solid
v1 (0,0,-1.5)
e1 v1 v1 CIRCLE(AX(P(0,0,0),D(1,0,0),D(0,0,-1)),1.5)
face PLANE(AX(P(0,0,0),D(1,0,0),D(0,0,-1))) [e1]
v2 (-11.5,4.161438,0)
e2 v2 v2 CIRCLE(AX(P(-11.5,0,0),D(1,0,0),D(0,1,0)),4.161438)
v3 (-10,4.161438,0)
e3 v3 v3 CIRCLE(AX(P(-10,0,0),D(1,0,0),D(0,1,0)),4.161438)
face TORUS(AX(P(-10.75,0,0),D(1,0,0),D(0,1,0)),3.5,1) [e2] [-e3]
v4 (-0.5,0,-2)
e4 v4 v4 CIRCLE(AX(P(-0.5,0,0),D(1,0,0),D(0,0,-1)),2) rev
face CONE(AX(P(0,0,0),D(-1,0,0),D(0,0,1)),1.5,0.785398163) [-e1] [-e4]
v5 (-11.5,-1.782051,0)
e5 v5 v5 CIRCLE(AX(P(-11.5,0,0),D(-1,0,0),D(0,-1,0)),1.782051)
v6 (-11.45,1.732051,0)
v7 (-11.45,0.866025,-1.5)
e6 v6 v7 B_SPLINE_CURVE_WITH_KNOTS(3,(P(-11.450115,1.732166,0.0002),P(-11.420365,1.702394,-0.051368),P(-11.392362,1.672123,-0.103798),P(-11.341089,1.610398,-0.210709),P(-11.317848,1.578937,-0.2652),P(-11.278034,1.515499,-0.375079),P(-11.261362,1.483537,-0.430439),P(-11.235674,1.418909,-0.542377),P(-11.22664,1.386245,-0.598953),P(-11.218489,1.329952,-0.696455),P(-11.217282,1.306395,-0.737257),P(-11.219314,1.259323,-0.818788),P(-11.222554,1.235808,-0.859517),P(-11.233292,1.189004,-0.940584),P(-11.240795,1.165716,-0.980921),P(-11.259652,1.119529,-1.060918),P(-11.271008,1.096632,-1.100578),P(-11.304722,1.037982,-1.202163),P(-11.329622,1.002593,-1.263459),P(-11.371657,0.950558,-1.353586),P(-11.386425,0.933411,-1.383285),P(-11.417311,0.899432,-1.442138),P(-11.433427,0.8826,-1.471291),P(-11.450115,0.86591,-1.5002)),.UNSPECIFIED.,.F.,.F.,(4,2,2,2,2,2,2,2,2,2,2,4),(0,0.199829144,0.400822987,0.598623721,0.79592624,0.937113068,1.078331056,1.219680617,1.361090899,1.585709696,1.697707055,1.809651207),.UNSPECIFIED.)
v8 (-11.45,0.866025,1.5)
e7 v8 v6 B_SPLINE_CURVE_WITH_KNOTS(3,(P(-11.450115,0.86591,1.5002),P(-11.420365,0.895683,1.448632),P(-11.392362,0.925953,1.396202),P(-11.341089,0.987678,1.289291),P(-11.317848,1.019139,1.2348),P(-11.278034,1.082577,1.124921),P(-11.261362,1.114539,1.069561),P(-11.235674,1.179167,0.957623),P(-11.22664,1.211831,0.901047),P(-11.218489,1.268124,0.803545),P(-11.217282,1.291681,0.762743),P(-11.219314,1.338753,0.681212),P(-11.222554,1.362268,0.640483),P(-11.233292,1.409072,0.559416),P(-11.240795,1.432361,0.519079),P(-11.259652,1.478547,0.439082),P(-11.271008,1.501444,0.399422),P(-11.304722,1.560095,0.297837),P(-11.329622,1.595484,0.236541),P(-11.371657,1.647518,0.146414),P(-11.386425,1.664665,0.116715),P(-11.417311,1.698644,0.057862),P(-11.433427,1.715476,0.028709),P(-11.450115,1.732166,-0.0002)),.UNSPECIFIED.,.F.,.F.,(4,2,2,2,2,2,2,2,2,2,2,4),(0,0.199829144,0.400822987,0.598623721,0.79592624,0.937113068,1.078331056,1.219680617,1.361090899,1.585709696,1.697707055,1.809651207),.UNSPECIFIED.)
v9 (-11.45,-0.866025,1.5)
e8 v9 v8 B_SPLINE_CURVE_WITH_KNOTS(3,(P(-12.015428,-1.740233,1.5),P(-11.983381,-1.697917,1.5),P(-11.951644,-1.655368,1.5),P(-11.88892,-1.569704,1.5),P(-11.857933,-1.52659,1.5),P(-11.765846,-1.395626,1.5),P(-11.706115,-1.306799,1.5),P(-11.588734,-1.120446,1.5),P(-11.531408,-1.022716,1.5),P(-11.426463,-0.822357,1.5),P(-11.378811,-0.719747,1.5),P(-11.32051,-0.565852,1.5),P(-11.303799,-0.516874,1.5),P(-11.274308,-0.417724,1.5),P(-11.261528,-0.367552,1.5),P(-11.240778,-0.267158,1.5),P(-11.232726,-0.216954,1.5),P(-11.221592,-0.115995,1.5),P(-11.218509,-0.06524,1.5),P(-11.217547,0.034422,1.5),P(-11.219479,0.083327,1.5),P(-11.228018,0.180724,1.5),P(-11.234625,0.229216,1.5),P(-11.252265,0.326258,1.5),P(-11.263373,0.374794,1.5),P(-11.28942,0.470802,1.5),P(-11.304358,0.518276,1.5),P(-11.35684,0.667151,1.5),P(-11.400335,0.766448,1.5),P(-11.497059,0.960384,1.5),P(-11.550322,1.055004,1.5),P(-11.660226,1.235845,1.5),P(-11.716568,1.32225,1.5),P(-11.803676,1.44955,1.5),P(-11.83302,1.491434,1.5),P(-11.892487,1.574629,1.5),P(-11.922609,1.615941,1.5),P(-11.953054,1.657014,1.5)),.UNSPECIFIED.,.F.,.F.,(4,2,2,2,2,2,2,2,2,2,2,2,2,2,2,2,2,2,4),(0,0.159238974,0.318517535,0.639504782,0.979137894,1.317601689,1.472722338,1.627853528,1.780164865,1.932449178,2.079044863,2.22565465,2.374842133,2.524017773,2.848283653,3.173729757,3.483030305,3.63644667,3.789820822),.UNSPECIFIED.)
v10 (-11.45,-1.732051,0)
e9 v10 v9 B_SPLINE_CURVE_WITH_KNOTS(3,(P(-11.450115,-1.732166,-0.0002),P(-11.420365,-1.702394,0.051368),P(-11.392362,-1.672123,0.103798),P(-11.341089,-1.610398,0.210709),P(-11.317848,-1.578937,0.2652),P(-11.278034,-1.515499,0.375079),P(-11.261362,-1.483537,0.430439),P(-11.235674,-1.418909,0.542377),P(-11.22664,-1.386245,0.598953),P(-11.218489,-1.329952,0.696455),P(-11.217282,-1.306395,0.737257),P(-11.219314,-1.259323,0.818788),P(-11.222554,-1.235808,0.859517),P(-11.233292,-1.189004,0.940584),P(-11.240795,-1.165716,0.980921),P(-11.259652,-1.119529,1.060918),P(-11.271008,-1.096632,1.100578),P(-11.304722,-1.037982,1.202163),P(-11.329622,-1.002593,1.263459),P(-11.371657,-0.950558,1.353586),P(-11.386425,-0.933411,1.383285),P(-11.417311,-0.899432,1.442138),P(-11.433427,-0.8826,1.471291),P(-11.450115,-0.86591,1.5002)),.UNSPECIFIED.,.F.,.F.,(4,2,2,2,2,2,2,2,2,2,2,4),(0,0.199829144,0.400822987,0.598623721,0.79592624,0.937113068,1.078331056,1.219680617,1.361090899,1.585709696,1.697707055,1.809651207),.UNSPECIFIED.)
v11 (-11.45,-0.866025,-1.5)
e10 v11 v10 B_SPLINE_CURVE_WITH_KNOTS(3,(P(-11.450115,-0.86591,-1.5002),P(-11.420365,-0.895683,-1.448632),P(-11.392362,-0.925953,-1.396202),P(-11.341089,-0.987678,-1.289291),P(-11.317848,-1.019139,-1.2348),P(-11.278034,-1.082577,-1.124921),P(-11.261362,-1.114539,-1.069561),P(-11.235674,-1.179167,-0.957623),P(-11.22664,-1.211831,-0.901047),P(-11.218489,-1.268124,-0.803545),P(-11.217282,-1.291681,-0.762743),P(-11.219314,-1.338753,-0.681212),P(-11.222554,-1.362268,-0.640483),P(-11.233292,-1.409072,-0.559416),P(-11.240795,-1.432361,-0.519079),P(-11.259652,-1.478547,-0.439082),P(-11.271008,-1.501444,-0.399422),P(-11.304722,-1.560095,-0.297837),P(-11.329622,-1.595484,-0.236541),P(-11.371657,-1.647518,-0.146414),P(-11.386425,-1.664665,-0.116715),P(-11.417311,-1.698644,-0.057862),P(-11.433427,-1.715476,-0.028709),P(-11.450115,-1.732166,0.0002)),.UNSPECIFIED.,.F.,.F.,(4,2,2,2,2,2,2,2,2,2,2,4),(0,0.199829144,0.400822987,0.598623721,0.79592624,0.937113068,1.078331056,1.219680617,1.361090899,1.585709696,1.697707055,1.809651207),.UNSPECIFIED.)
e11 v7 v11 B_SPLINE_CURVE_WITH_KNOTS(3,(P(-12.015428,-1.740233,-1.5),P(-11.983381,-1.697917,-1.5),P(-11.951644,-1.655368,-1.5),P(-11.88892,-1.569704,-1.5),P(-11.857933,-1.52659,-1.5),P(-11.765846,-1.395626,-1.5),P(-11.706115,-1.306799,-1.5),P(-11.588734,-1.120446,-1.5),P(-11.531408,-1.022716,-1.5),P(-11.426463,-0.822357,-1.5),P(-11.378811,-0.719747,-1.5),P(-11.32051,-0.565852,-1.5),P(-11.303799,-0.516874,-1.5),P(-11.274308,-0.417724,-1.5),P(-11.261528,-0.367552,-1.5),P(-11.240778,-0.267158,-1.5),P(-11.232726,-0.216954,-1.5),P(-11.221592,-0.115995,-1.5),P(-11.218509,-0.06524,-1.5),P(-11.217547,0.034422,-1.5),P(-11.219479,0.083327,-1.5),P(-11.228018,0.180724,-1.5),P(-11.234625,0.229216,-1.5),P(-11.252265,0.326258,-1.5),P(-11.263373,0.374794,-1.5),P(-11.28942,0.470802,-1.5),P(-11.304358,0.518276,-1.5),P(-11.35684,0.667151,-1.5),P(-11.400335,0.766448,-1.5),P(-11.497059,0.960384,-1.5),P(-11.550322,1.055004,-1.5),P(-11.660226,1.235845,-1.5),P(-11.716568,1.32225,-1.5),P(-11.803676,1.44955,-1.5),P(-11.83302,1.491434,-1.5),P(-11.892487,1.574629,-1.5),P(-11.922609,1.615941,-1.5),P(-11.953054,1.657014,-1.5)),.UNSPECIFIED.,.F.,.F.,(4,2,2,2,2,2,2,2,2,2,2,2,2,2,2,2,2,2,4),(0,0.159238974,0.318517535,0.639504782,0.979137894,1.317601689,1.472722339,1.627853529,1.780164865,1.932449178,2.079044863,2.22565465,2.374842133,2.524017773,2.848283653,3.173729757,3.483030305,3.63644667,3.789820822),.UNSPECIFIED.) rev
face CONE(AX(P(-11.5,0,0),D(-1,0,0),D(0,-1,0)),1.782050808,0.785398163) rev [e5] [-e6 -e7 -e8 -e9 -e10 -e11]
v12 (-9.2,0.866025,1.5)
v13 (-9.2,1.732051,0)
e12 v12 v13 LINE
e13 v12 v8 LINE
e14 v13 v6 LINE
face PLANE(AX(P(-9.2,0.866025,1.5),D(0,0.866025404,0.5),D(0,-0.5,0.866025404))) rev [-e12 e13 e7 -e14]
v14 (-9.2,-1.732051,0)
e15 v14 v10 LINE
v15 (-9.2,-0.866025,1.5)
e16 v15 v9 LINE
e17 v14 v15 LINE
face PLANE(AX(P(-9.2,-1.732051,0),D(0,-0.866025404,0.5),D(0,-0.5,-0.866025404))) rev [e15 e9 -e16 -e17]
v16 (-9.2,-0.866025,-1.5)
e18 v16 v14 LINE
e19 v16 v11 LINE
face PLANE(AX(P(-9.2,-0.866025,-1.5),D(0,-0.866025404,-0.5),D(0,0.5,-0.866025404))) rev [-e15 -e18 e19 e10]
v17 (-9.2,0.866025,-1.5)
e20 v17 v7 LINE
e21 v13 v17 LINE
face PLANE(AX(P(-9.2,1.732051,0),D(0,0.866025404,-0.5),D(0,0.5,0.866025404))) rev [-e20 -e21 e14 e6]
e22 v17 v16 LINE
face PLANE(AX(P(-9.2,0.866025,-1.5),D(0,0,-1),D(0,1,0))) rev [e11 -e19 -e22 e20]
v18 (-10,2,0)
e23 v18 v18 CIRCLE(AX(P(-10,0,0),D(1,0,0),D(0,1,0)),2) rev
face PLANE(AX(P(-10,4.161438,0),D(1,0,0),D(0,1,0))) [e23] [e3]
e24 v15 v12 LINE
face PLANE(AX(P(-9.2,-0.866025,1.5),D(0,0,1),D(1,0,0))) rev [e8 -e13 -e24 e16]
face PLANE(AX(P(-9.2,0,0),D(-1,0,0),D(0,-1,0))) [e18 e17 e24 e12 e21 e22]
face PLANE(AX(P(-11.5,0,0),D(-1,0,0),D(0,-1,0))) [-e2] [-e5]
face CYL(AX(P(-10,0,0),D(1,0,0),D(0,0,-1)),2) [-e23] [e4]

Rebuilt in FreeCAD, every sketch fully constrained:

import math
import FreeCAD as App
import Part
import Sketcher
Q = App.Units.Quantity


def edges_at(feature, points):
    """Names of the edges that pass closest to the given points."""
    edges = feature.Shape.Edges
    near = lambda p: min(range(len(edges)), key=lambda i: edges[i].distToShape(Part.Vertex(*p))[0])
    return sorted({f"Edge{near(p) + 1}" for p in points})


def add_polygon(sketch, points):
    """Adds a closed chain of lines whose ends are joined by coincident constraints."""
    first, n = sketch.GeometryCount, len(points)
    for a, b in zip(points, points[1:] + points[:1]):
        sketch.addGeometry(Part.LineSegment(App.Vector(*a, 0), App.Vector(*b, 0)), False)
    for i in range(n):
        sketch.addConstraint(Sketcher.Constraint("Coincident", first + i, 2, first + (i + 1) % n, 1))

doc = App.newDocument("Part")
body = doc.addObject("PartDesign::Body", "Body")

sketch1 = body.newObject("Sketcher::SketchObject", "Sketch")
sketch1.AttachmentSupport = (doc.getObject("YZ_Plane"), [""])
sketch1.MapMode = "FlatFace"
sketch1.addGeometry(Part.Circle(App.Vector(0, 0, 0), App.Vector(0, 0, 1), 2), False)
sketch1.addConstraint(Sketcher.Constraint("Coincident", 0, 3, -1, 1))
sketch1.addConstraint(Sketcher.Constraint("Diameter", 0, Q("4 mm")))
pad1 = body.newObject("PartDesign::Pad", "Pad")
pad1.Profile = sketch1
pad1.Length = 10
pad1.Reversed = True
doc.recompute()

chamfer = body.newObject("PartDesign::Chamfer", "Chamfer")
chamfer.Base = (pad1, edges_at(pad1, [(0, 0, 2)]))
chamfer.Size = 0.5

sketch2 = body.newObject("Sketcher::SketchObject", "Sketch001")
sketch2.AttachmentSupport = (doc.getObject("XY_Plane"), [""])
sketch2.MapMode = "FlatFace"
sketch2.addGeometry(Part.LineSegment(App.Vector(-11.5, 4.2, 0), App.Vector(-11.5, 0, 0)), False)
sketch2.addGeometry(Part.LineSegment(App.Vector(-11.5, 0, 0), App.Vector(-10, 0, 0)), False)
sketch2.addGeometry(Part.LineSegment(App.Vector(-10, 0, 0), App.Vector(-10, 4.2, 0)), False)
sketch2.addGeometry(Part.ArcOfCircle(Part.Circle(App.Vector(-10.8, 3.5, 0), App.Vector(0, 0, 1), 1), math.radians(41), math.radians(139)), False)
sketch2.addConstraint(Sketcher.Constraint("Coincident", 0, 2, 1, 1))
sketch2.addConstraint(Sketcher.Constraint("Coincident", 1, 2, 2, 1))
sketch2.addConstraint(Sketcher.Constraint("Coincident", 2, 2, 3, 1))
sketch2.addConstraint(Sketcher.Constraint("Coincident", 3, 2, 0, 1))
sketch2.addConstraint(Sketcher.Constraint("Vertical", 0))
sketch2.addConstraint(Sketcher.Constraint("Horizontal", 1))
sketch2.addConstraint(Sketcher.Constraint("Vertical", 2))
sketch2.addConstraint(Sketcher.Constraint("PointOnObject", 0, 2, -1))
sketch2.addConstraint(Sketcher.Constraint("Horizontal", 2, 2, 3, 2))
sketch2.addConstraint(Sketcher.Constraint("Radius", 3, Q("1 mm")))
sketch2.addConstraint(Sketcher.Constraint("DistanceX", 1, 1, 1, 2, Q("1.5 mm")))
sketch2.addConstraint(Sketcher.Constraint("DistanceX", 1, 2, -1, 1, Q("10 mm")))
sketch2.addConstraint(Sketcher.Constraint("DistanceY", -1, 1, 3, 3, Q("3.5 mm")))
revolution = body.newObject("PartDesign::Revolution", "Revolution")
revolution.Profile = sketch2
revolution.ReferenceAxis = (sketch2, ["H_Axis"])
revolution.Angle = 360

sketch3 = body.newObject("Sketcher::SketchObject", "Sketch002")
sketch3.AttachmentSupport = (doc.getObject("YZ_Plane"), [""])
sketch3.MapMode = "FlatFace"
sketch3.AttachmentOffset = App.Placement(App.Vector(0, 0, -11.5), App.Rotation())
add_polygon(sketch3, [(1.7, 0), (0.9, -1.5), (-0.9, -1.5), (-1.7, 0), (-0.9, 1.5), (0.9, 1.5)])
sketch3.addConstraint(Sketcher.Constraint("Horizontal", 1))
sketch3.addConstraint(Sketcher.Constraint("Horizontal", 4))
sketch3.addConstraint(Sketcher.Constraint("Symmetric", 0, 2, 3, 2, -1, 1))
sketch3.addConstraint(Sketcher.Constraint("Symmetric", 2, 2, 5, 2, -1, 1))
sketch3.addConstraint(Sketcher.Constraint("PointOnObject", 2, 2, -1))
sketch3.addConstraint(Sketcher.Constraint("Parallel", 2, 5))
sketch3.addConstraint(Sketcher.Constraint("Vertical", 1, 2, 3, 2))
sketch3.addConstraint(Sketcher.Constraint("Angle", 0, Q("-120 deg")))
sketch3.addConstraint(Sketcher.Constraint("DistanceY", 1, 2, 3, 2, Q("3 mm")))
sketch3.addConstraint(Sketcher.Constraint("DistanceX", 1, 2, 1, 1, Q("1.732051 mm")))
pocket1 = body.newObject("PartDesign::Pocket", "Pocket")
pocket1.Profile = sketch3
pocket1.Length = 2.3
pocket1.Reversed = True

sketch4 = body.newObject("Sketcher::SketchObject", "Sketch003")
sketch4.AttachmentSupport = (doc.getObject("YZ_Plane"), [""])
sketch4.MapMode = "FlatFace"
sketch4.AttachmentOffset = App.Placement(App.Vector(0, 0, -11.5), App.Rotation())
sketch4.addGeometry(Part.Circle(App.Vector(0, 0, 0), App.Vector(0, 0, 1), 1.8), False)
sketch4.addConstraint(Sketcher.Constraint("Coincident", 0, 3, -1, 1))
sketch4.addConstraint(Sketcher.Constraint("Diameter", 0, Q("3.564102 mm")))
pocket2 = body.newObject("PartDesign::Pocket", "Pocket001")
pocket2.Profile = sketch4
pocket2.Length = 1
pocket2.Reversed = True
pocket2.TaperAngle = -45

doc.recompute()
